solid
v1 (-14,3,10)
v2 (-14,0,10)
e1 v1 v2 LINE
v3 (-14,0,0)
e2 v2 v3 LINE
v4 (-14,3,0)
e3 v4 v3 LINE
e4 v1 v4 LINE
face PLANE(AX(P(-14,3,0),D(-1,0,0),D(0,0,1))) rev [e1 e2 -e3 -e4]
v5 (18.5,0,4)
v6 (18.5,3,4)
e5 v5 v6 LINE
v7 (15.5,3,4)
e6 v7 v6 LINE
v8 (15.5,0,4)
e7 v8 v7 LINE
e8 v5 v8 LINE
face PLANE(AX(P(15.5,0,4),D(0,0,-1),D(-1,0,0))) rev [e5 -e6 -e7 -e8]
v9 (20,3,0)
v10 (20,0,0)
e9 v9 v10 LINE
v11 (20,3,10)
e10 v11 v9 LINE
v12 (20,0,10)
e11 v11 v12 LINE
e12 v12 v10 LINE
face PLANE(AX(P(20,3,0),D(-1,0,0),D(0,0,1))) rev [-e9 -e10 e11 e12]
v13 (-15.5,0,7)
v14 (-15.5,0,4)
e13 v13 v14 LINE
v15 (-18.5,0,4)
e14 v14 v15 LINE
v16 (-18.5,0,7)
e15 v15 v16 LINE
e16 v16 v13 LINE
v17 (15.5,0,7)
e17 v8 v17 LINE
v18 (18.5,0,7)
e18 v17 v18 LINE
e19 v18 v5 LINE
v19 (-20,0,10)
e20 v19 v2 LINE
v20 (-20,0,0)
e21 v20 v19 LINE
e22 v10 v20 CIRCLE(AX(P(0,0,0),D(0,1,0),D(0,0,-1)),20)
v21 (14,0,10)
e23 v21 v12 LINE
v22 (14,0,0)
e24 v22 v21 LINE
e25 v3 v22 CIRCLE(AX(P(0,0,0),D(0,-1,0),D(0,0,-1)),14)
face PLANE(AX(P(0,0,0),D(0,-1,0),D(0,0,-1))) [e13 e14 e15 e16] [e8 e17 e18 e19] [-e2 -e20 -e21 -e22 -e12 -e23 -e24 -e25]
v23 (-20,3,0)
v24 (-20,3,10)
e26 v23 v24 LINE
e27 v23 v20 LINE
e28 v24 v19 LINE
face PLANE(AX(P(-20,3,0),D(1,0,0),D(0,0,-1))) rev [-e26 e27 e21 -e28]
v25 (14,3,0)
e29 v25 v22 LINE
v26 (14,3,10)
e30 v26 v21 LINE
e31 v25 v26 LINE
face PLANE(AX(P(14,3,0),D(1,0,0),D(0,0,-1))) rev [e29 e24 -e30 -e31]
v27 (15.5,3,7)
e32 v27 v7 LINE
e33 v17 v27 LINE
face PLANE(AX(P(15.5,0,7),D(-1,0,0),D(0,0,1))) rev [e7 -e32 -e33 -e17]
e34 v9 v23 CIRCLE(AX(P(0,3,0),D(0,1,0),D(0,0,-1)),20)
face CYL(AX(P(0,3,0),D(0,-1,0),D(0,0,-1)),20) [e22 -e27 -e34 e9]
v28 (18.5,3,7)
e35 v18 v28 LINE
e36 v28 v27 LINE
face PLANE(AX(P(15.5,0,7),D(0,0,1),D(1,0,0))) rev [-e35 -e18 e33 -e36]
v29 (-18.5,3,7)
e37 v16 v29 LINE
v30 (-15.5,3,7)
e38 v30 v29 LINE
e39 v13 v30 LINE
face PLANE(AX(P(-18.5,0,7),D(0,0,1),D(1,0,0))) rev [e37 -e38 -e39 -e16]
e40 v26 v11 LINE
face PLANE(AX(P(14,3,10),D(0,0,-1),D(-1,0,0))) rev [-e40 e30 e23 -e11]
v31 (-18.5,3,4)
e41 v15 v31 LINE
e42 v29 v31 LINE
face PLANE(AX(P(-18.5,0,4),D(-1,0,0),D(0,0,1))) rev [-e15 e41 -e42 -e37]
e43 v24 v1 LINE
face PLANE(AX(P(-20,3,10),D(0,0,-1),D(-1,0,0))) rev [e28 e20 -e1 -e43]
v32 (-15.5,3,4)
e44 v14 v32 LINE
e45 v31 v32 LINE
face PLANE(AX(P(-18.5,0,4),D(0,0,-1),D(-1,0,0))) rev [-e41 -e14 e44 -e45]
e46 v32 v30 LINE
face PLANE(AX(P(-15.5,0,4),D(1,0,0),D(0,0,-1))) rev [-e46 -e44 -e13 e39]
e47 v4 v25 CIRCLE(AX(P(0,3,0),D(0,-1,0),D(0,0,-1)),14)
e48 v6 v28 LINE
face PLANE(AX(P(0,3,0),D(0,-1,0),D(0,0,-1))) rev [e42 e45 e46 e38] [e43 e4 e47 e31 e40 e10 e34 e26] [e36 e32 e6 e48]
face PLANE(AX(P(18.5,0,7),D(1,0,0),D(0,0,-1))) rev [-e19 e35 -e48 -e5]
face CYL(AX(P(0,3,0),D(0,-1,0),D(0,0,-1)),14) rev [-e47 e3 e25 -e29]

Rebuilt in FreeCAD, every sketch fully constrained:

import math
import FreeCAD as App
import Part
import Sketcher
Q = App.Units.Quantity


def add_polygon(sketch, points):
    """Adds a closed chain of lines whose ends are joined by coincident constraints."""
    first, n = sketch.GeometryCount, len(points)
    for a, b in zip(points, points[1:] + points[:1]):
        sketch.addGeometry(Part.LineSegment(App.Vector(*a, 0), App.Vector(*b, 0)), False)
    for i in range(n):
        sketch.addConstraint(Sketcher.Constraint("Coincident", first + i, 2, first + (i + 1) % n, 1))

doc = App.newDocument("Part")
params = doc.addObject("Spreadsheet::Sheet", "Params")
for row, (alias, value) in enumerate([
    ("sketch1_radius", "14 mm"),
    ("sketch1_radius2", "20 mm"),
    ("sketch1_height", "10 mm"),
    ("pad1_length", "3 mm"),
    ("sketch2_width", "3 mm"),
], start=1):
    params.set(f"A{row}", alias)
    params.set(f"B{row}", "=" + value)
    params.setAlias(f"B{row}", alias)

body = doc.addObject("PartDesign::Body", "Body")

# Sketch on XZ plane
sketch1 = body.newObject("Sketcher::SketchObject", "Sketch")
sketch1.AttachmentSupport = (doc.getObject("XZ_Plane"), [""])
sketch1.MapMode = "FlatFace"
sketch1.addGeometry([
    Part.LineSegment(App.Vector(-20, 0, 0), App.Vector(-20, 10, 0)),  # 0
    Part.LineSegment(App.Vector(-20, 10, 0), App.Vector(-14, 10, 0)),  # 1
    Part.LineSegment(App.Vector(-14, 10, 0), App.Vector(-14, 0, 0)),  # 2
    Part.ArcOfCircle(Part.Circle(App.Vector(0, 0, 0), App.Vector(0, 0, 1), 14), math.radians(180), math.radians(360)),  # 3
    Part.LineSegment(App.Vector(14, 0, 0), App.Vector(14, 10, 0)),  # 4
    Part.LineSegment(App.Vector(14, 10, 0), App.Vector(20, 10, 0)),  # 5
    Part.LineSegment(App.Vector(20, 10, 0), App.Vector(20, 0, 0)),  # 6
    Part.ArcOfCircle(Part.Circle(App.Vector(0, 0, 0), App.Vector(0, 0, 1), 20), math.radians(180), math.radians(360)),  # 7
], False)
sketch1.addConstraint([
    Sketcher.Constraint("Coincident", 0, 2, 1, 1),
    Sketcher.Constraint("Coincident", 1, 2, 2, 1),
    Sketcher.Constraint("Tangent", 2, 2, 3, 1),
    Sketcher.Constraint("Tangent", 3, 2, 4, 1),
    Sketcher.Constraint("Coincident", 4, 2, 5, 1),
    Sketcher.Constraint("Coincident", 5, 2, 6, 1),
    Sketcher.Constraint("Tangent", 6, 2, 7, 2),
    Sketcher.Constraint("Tangent", 7, 1, 0, 1),
    Sketcher.Constraint("Vertical", 0),
    Sketcher.Constraint("Horizontal", 1),
    Sketcher.Constraint("Vertical", 2),
    Sketcher.Constraint("Vertical", 4),
    Sketcher.Constraint("Horizontal", 5),
    Sketcher.Constraint("Vertical", 6),
    Sketcher.Constraint("Coincident", 3, 3, -1, 1),
    Sketcher.Constraint("Coincident", 7, 3, -1, 1),
    Sketcher.Constraint("Horizontal", 1, 2, 4, 2),
    Sketcher.Constraint("Radius", 3, Q("14 mm")),
    Sketcher.Constraint("Radius", 7, Q("20 mm")),
    Sketcher.Constraint("DistanceY", 0, 1, 0, 2, Q("10 mm")),
])
sketch1.setExpression("Constraints[17]", "Params.sketch1_radius")
sketch1.setExpression("Constraints[18]", "Params.sketch1_radius2")
sketch1.setExpression("Constraints[19]", "Params.sketch1_height")
pad1 = body.newObject("PartDesign::Pad", "Pad")
pad1.Profile = sketch1
pad1.setExpression("Length", "Params.pad1_length")
pad1.Reversed = True

# Sketch on XZ plane
sketch2 = body.newObject("Sketcher::SketchObject", "Sketch001")
sketch2.AttachmentSupport = (doc.getObject("XZ_Plane"), [""])
sketch2.MapMode = "FlatFace"
sketch2.AttachmentOffset = App.Placement(App.Vector(0, 0, -6), App.Rotation())
add_polygon(sketch2, [(-18.5, 4), (-18.5, 7), (-15.5, 7), (-15.5, 4)])  # lines 0-3
add_polygon(sketch2, [(15.5, 4), (15.5, 7), (18.5, 7), (18.5, 4)])  # lines 4-7
sketch2.addConstraint([
    Sketcher.Constraint("Vertical", 0),
    Sketcher.Constraint("Horizontal", 1),
    Sketcher.Constraint("Vertical", 2),
    Sketcher.Constraint("Horizontal", 3),
    Sketcher.Constraint("Vertical", 4),
    Sketcher.Constraint("Horizontal", 5),
    Sketcher.Constraint("Vertical", 6),
    Sketcher.Constraint("Horizontal", 7),
    Sketcher.Constraint("Symmetric", 1, 2, 4, 2, -2),
    Sketcher.Constraint("Symmetric", 3, 2, 6, 2, -2),
    Sketcher.Constraint("Equal", 7, 0),
    Sketcher.Constraint("DistanceX", 1, 1, 1, 2, Q("3 mm")),
    Sketcher.Constraint("DistanceY", -1, 1, 0, 2, Q("7 mm")),
    Sketcher.Constraint("DistanceX", 1, 2, 4, 2, Q("31 mm")),
])
sketch2.setExpression("Constraints[19]", "Params.sketch2_width")
pocket1 = body.newObject("PartDesign::Pocket", "Pocket")
pocket1.Profile = sketch2
pocket1.Type = "ThroughAll"
pocket1.Reversed = True

doc.recompute()
